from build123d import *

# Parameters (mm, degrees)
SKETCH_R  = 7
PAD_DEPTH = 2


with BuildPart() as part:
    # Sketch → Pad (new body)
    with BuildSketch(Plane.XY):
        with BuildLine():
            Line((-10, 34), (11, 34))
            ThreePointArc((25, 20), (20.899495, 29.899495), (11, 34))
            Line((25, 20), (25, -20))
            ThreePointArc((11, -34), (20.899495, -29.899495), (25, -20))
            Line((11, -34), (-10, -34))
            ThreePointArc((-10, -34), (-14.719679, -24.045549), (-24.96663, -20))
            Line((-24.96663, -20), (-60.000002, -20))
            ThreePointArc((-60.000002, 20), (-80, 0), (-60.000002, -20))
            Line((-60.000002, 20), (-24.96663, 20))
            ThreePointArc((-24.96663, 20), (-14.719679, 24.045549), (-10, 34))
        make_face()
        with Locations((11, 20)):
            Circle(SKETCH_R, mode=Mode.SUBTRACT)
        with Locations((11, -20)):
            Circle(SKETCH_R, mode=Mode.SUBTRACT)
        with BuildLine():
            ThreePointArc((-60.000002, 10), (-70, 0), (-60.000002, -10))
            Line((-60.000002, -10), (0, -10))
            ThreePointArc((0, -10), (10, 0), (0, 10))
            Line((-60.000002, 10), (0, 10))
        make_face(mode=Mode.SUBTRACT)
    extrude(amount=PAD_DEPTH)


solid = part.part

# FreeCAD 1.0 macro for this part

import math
import FreeCAD as App
import Part
import Sketcher

doc = App.newDocument("Part")
body = doc.addObject("PartDesign::Body", "Body")

sketch1 = body.newObject("Sketcher::SketchObject", "Sketch")
sketch1.AttachmentSupport = (doc.getObject("XY_Plane"), [""])
sketch1.MapMode = "FlatFace"
sketch1.addGeometry([
    Part.LineSegment(App.Vector(11, 34, 0), App.Vector(-10, 34, 0)),
    Part.ArcOfCircle(Part.Circle(App.Vector(-25, 35, 0), App.Vector(0, 0, 1), 15), math.radians(-90), math.radians(-4)),
    Part.LineSegment(App.Vector(-25, 20, 0), App.Vector(-60, 20, 0)),
    Part.ArcOfCircle(Part.Circle(App.Vector(-60, 0, 0), App.Vector(0, 0, 1), 20), math.radians(90), math.radians(270)),
    Part.LineSegment(App.Vector(-60, -20, 0), App.Vector(-25, -20, 0)),
    Part.ArcOfCircle(Part.Circle(App.Vector(-25, -35, 0), App.Vector(0, 0, 1), 15), math.radians(4), math.radians(90)),
    Part.LineSegment(App.Vector(-10, -34, 0), App.Vector(11, -34, 0)),
    Part.ArcOfCircle(Part.Circle(App.Vector(11, -20, 0), App.Vector(0, 0, 1), 14), math.radians(-90), math.radians(0)),
    Part.LineSegment(App.Vector(25, -20, 0), App.Vector(25, 20, 0)),
    Part.ArcOfCircle(Part.Circle(App.Vector(11, 20, 0), App.Vector(0, 0, 1), 14), math.radians(0), math.radians(90)),
    Part.Circle(App.Vector(11, -20, 0), App.Vector(0, 0, 1), 7),
    Part.Circle(App.Vector(11, 20, 0), App.Vector(0, 0, 1), 7),
    Part.LineSegment(App.Vector(-60, 10, 0), App.Vector(0, 10, 0)),
    Part.ArcOfCircle(Part.Circle(App.Vector(0, 0, 0), App.Vector(0, 0, 1), 10), math.radians(-90), math.radians(90)),
    Part.LineSegment(App.Vector(0, -10, 0), App.Vector(-60, -10, 0)),
    Part.ArcOfCircle(Part.Circle(App.Vector(-60, 0, 0), App.Vector(0, 0, 1), 10), math.radians(90), math.radians(270)),
], False)
sketch1.addConstraint([
    Sketcher.Constraint("Coincident", 0, 2, 1, 2),
    Sketcher.Constraint("Tangent", 1, 1, 2, 1),
    Sketcher.Constraint("Tangent", 2, 2, 3, 1),
    Sketcher.Constraint("Tangent", 3, 2, 4, 1),
    Sketcher.Constraint("Tangent", 4, 2, 5, 2),
    Sketcher.Constraint("Coincident", 5, 1, 6, 1),
    Sketcher.Constraint("Tangent", 6, 2, 7, 1),
    Sketcher.Constraint("Tangent", 7, 2, 8, 1),
    Sketcher.Constraint("Tangent", 8, 2, 9, 1),
    Sketcher.Constraint("Tangent", 9, 2, 0, 1),
    Sketcher.Constraint("Tangent", 12, 2, 13, 2),
    Sketcher.Constraint("Tangent", 13, 1, 14, 1),
    Sketcher.Constraint("Tangent", 14, 2, 15, 2),
    Sketcher.Constraint("Tangent", 15, 1, 12, 1),
    Sketcher.Constraint("Horizontal", 0),
    Sketcher.Constraint("Horizontal", 2),
    Sketcher.Constraint("Horizontal", 4),
    Sketcher.Constraint("Horizontal", 6),
    Sketcher.Constraint("Vertical", 8),
    Sketcher.Constraint("Horizontal", 12),
    Sketcher.Constraint("Horizontal", 14),
    Sketcher.Constraint("Coincident", 13, 3, -1, 1),
    Sketcher.Constraint("Coincident", 10, 3, 7, 3),
    Sketcher.Constraint("Coincident", 11, 3, 9, 3),
    Sketcher.Constraint("Coincident", 15, 3, 3, 3),
    Sketcher.Constraint("Equal", 1, 5),
    Sketcher.Constraint("Equal", 7, 9),
    Sketcher.Constraint("Equal", 10, 11),
    Sketcher.Constraint("Symmetric", 0, 2, 5, 1, -1),
    Sketcher.Constraint("Horizontal", 11, 3, 1, 1),
    Sketcher.Constraint("Diameter", 10, 14.0),
    Sketcher.Constraint("Radius", 1, 15.000001),
    Sketcher.Constraint("Radius", 3, 20.0),
    Sketcher.Constraint("Radius", 7, 14.0),
    Sketcher.Constraint("Radius", 13, 10.0),
    Sketcher.Constraint("DistanceX", 0, 2, 0, 1, 21.0),
    Sketcher.Constraint("DistanceX", 3, 3, -1, 1, 60.0),
    Sketcher.Constraint("DistanceX", -1, 1, 7, 3, 11.0),
])
pad1 = body.newObject("PartDesign::Pad", "Pad")
pad1.Profile = sketch1
pad1.Length = 2

doc.recompute()
